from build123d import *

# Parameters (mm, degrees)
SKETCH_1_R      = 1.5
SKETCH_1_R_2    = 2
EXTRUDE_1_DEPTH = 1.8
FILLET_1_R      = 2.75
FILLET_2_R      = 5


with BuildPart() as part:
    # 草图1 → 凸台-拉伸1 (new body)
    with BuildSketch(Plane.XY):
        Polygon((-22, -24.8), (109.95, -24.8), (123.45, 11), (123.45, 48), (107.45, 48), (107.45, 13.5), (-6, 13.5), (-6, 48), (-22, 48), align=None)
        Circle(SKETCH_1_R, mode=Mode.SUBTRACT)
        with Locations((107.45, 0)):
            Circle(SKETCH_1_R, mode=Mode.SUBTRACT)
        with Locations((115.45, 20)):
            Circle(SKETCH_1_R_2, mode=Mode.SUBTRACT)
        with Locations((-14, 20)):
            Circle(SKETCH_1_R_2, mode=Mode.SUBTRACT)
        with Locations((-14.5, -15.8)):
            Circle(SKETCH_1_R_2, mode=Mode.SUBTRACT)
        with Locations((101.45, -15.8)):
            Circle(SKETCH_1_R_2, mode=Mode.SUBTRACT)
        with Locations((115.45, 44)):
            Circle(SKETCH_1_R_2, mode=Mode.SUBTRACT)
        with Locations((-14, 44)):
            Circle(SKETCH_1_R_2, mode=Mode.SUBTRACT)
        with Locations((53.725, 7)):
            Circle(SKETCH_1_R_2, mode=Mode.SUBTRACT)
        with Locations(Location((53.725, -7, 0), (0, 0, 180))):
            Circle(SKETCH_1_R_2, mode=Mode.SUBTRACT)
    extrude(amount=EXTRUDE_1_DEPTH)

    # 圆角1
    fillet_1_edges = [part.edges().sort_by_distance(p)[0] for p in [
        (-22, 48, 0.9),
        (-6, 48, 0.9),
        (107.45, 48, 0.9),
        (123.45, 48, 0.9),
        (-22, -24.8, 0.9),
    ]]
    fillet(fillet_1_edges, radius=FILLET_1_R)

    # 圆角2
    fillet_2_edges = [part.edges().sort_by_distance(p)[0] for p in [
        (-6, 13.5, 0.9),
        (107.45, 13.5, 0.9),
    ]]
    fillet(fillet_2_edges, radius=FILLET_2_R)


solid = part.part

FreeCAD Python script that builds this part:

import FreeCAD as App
import Part
import Sketcher

V = App.Vector
Q = App.Units.Quantity


def edges_at(feature, points):
    """Names of the edges that pass closest to the given points."""
    edges = feature.Shape.Edges
    near = lambda p: min(range(len(edges)), key=lambda i: edges[i].distToShape(Part.Vertex(*p))[0])
    return sorted({f"Edge{near(p) + 1}" for p in points})

doc = App.newDocument("Part")
body = doc.addObject("PartDesign::Body", "Body")

# Sketch on XY plane
sketch1 = body.newObject("Sketcher::SketchObject", "Sketch")
sketch1.AttachmentSupport = (doc.getObject("XY_Plane"), [""])
sketch1.MapMode = "FlatFace"
sketch1.addGeometry(Part.LineSegment(V(-22, -24.8, 0), V(110, -24.8, 0)), False)
sketch1.addGeometry(Part.LineSegment(V(110, -24.8, 0), V(123.5, 11, 0)), False)
sketch1.addGeometry(Part.LineSegment(V(123.5, 11, 0), V(123.5, 48, 0)), False)
sketch1.addGeometry(Part.LineSegment(V(123.5, 48, 0), V(107.5, 48, 0)), False)
sketch1.addGeometry(Part.LineSegment(V(107.5, 48, 0), V(107.5, 13.5, 0)), False)
sketch1.addGeometry(Part.LineSegment(V(107.5, 13.5, 0), V(-6, 13.5, 0)), False)
sketch1.addGeometry(Part.LineSegment(V(-6, 13.5, 0), V(-6, 48, 0)), False)
sketch1.addGeometry(Part.LineSegment(V(-6, 48, 0), V(-22, 48, 0)), False)
sketch1.addGeometry(Part.LineSegment(V(-22, 48, 0), V(-22, -24.8, 0)), False)
sketch1.addGeometry(Part.Circle(V(-14.5, -15.8, 0), V(0, 0, 1), 2), False)
sketch1.addGeometry(Part.Circle(V(0, 0, 0), V(0, 0, 1), 1.5), False)
sketch1.addGeometry(Part.Circle(V(53.7, -7, 0), V(0, 0, 1), 2), False)
sketch1.addGeometry(Part.Circle(V(101.5, -15.8, 0), V(0, 0, 1), 2), False)
sketch1.addGeometry(Part.Circle(V(53.7, 7, 0), V(0, 0, 1), 2), False)
sketch1.addGeometry(Part.Circle(V(107.5, 0, 0), V(0, 0, 1), 1.5), False)
sketch1.addGeometry(Part.Circle(V(-14, 20, 0), V(0, 0, 1), 2), False)
sketch1.addGeometry(Part.Circle(V(-14, 44, 0), V(0, 0, 1), 2), False)
sketch1.addGeometry(Part.Circle(V(115.5, 20, 0), V(0, 0, 1), 2), False)
sketch1.addGeometry(Part.Circle(V(115.5, 44, 0), V(0, 0, 1), 2), False)
sketch1.addConstraint(Sketcher.Constraint("Coincident", 0, 2, 1, 1))
sketch1.addConstraint(Sketcher.Constraint("Coincident", 1, 2, 2, 1))
sketch1.addConstraint(Sketcher.Constraint("Coincident", 2, 2, 3, 1))
sketch1.addConstraint(Sketcher.Constraint("Coincident", 3, 2, 4, 1))
sketch1.addConstraint(Sketcher.Constraint("Coincident", 4, 2, 5, 1))
sketch1.addConstraint(Sketcher.Constraint("Coincident", 5, 2, 6, 1))
sketch1.addConstraint(Sketcher.Constraint("Coincident", 6, 2, 7, 1))
sketch1.addConstraint(Sketcher.Constraint("Coincident", 7, 2, 8, 1))
sketch1.addConstraint(Sketcher.Constraint("Coincident", 8, 2, 0, 1))
sketch1.addConstraint(Sketcher.Constraint("Horizontal", 0))
sketch1.addConstraint(Sketcher.Constraint("Vertical", 2))
sketch1.addConstraint(Sketcher.Constraint("Horizontal", 3))
sketch1.addConstraint(Sketcher.Constraint("Vertical", 4))
sketch1.addConstraint(Sketcher.Constraint("Horizontal", 5))
sketch1.addConstraint(Sketcher.Constraint("Vertical", 6))
sketch1.addConstraint(Sketcher.Constraint("Horizontal", 7))
sketch1.addConstraint(Sketcher.Constraint("Vertical", 8))
sketch1.addConstraint(Sketcher.Constraint("Coincident", 10, 3, -1, 1))
sketch1.addConstraint(Sketcher.Constraint("Equal", 9, 11))
sketch1.addConstraint(Sketcher.Constraint("Equal", 11, 12))
sketch1.addConstraint(Sketcher.Constraint("Equal", 12, 13))
sketch1.addConstraint(Sketcher.Constraint("Equal", 10, 14))
sketch1.addConstraint(Sketcher.Constraint("Equal", 13, 15))
sketch1.addConstraint(Sketcher.Constraint("Equal", 15, 16))
sketch1.addConstraint(Sketcher.Constraint("Equal", 16, 17))
sketch1.addConstraint(Sketcher.Constraint("Equal", 17, 18))
sketch1.addConstraint(Sketcher.Constraint("Symmetric", 11, 3, 13, 3, -1))
sketch1.addConstraint(Sketcher.Constraint("PointOnObject", 14, 3, -1))
sketch1.addConstraint(Sketcher.Constraint("Horizontal", 9, 3, 12, 3))
sketch1.addConstraint(Sketcher.Constraint("Horizontal", 15, 3, 17, 3))
sketch1.addConstraint(Sketcher.Constraint("Horizontal", 16, 3, 18, 3))
sketch1.addConstraint(Sketcher.Constraint("Horizontal", 3, 2, 6, 2))
sketch1.addConstraint(Sketcher.Constraint("Vertical", 15, 3, 16, 3))
sketch1.addConstraint(Sketcher.Constraint("Vertical", 17, 3, 18, 3))
sketch1.addConstraint(Sketcher.Constraint("Vertical", 14, 3, 3, 2))
sketch1.addConstraint(Sketcher.Constraint("Equal", 3, 7))
sketch1.addConstraint(Sketcher.Constraint("Diameter", 9, Q("4 mm")))
sketch1.addConstraint(Sketcher.Constraint("Diameter", 10, Q("3 mm")))
sketch1.addConstraint(Sketcher.Constraint("DistanceX", 3, 2, 3, 1, Q("16 mm")))
sketch1.addConstraint(Sketcher.Constraint("DistanceY", 2, 1, 2, 2, Q("37 mm")))
sketch1.addConstraint(Sketcher.Constraint("DistanceY", 4, 2, 4, 1, Q("34.5 mm")))
sketch1.addConstraint(Sketcher.Constraint("DistanceY", 8, 2, 8, 1, Q("72.8 mm")))
sketch1.addConstraint(Sketcher.Constraint("DistanceY", 11, 3, -1, 1, Q("7 mm")))
sketch1.addConstraint(Sketcher.Constraint("DistanceX", 15, 3, -1, 1, Q("14 mm")))
sketch1.addConstraint(Sketcher.Constraint("DistanceY", -1, 1, 15, 3, Q("20 mm")))
sketch1.addConstraint(Sketcher.Constraint("DistanceY", -1, 1, 16, 3, Q("44 mm")))
sketch1.addConstraint(Sketcher.Constraint("DistanceY", -1, 1, 1, 2, Q("11 mm")))
sketch1.addConstraint(Sketcher.Constraint("DistanceX", 5, 2, -1, 1, Q("6 mm")))
sketch1.addConstraint(Sketcher.Constraint("DistanceX", 12, 3, 14, 3, Q("6 mm")))
sketch1.addConstraint(Sketcher.Constraint("DistanceX", 14, 3, 17, 3, Q("8 mm")))
sketch1.addConstraint(Sketcher.Constraint("DistanceY", 0, 2, 12, 3, Q("9 mm")))
sketch1.addConstraint(Sketcher.Constraint("DistanceX", 0, 1, 0, 2, Q("131.95 mm")))
sketch1.addConstraint(Sketcher.Constraint("DistanceX", 5, 2, 5, 1, Q("113.45 mm")))
sketch1.addConstraint(Sketcher.Constraint("DistanceX", 9, 3, -1, 1, Q("14.5 mm")))
sketch1.addConstraint(Sketcher.Constraint("DistanceX", -1, 1, 11, 3, Q("53.725 mm")))
pad1 = body.newObject("PartDesign::Pad", "Pad")
pad1.Profile = sketch1
pad1.Length = 1.8
doc.recompute()

fillet = body.newObject("PartDesign::Fillet", "Fillet")
fillet.Base = (pad1, edges_at(pad1, [
    (-22, 48, 0.9),
    (-6, 48, 0.9),
    (107.45, 48, 0.9),
    (123.45, 48, 0.9),
    (-22, -24.8, 0.9),
]))
fillet.Radius = 2.75
doc.recompute()

fillet2 = body.newObject("PartDesign::Fillet", "Fillet001")
fillet2.Base = (fillet, edges_at(fillet, [(-6, 13.5, 0.9), (107.45, 13.5, 0.9)]))
fillet2.Radius = 5

doc.recompute()
